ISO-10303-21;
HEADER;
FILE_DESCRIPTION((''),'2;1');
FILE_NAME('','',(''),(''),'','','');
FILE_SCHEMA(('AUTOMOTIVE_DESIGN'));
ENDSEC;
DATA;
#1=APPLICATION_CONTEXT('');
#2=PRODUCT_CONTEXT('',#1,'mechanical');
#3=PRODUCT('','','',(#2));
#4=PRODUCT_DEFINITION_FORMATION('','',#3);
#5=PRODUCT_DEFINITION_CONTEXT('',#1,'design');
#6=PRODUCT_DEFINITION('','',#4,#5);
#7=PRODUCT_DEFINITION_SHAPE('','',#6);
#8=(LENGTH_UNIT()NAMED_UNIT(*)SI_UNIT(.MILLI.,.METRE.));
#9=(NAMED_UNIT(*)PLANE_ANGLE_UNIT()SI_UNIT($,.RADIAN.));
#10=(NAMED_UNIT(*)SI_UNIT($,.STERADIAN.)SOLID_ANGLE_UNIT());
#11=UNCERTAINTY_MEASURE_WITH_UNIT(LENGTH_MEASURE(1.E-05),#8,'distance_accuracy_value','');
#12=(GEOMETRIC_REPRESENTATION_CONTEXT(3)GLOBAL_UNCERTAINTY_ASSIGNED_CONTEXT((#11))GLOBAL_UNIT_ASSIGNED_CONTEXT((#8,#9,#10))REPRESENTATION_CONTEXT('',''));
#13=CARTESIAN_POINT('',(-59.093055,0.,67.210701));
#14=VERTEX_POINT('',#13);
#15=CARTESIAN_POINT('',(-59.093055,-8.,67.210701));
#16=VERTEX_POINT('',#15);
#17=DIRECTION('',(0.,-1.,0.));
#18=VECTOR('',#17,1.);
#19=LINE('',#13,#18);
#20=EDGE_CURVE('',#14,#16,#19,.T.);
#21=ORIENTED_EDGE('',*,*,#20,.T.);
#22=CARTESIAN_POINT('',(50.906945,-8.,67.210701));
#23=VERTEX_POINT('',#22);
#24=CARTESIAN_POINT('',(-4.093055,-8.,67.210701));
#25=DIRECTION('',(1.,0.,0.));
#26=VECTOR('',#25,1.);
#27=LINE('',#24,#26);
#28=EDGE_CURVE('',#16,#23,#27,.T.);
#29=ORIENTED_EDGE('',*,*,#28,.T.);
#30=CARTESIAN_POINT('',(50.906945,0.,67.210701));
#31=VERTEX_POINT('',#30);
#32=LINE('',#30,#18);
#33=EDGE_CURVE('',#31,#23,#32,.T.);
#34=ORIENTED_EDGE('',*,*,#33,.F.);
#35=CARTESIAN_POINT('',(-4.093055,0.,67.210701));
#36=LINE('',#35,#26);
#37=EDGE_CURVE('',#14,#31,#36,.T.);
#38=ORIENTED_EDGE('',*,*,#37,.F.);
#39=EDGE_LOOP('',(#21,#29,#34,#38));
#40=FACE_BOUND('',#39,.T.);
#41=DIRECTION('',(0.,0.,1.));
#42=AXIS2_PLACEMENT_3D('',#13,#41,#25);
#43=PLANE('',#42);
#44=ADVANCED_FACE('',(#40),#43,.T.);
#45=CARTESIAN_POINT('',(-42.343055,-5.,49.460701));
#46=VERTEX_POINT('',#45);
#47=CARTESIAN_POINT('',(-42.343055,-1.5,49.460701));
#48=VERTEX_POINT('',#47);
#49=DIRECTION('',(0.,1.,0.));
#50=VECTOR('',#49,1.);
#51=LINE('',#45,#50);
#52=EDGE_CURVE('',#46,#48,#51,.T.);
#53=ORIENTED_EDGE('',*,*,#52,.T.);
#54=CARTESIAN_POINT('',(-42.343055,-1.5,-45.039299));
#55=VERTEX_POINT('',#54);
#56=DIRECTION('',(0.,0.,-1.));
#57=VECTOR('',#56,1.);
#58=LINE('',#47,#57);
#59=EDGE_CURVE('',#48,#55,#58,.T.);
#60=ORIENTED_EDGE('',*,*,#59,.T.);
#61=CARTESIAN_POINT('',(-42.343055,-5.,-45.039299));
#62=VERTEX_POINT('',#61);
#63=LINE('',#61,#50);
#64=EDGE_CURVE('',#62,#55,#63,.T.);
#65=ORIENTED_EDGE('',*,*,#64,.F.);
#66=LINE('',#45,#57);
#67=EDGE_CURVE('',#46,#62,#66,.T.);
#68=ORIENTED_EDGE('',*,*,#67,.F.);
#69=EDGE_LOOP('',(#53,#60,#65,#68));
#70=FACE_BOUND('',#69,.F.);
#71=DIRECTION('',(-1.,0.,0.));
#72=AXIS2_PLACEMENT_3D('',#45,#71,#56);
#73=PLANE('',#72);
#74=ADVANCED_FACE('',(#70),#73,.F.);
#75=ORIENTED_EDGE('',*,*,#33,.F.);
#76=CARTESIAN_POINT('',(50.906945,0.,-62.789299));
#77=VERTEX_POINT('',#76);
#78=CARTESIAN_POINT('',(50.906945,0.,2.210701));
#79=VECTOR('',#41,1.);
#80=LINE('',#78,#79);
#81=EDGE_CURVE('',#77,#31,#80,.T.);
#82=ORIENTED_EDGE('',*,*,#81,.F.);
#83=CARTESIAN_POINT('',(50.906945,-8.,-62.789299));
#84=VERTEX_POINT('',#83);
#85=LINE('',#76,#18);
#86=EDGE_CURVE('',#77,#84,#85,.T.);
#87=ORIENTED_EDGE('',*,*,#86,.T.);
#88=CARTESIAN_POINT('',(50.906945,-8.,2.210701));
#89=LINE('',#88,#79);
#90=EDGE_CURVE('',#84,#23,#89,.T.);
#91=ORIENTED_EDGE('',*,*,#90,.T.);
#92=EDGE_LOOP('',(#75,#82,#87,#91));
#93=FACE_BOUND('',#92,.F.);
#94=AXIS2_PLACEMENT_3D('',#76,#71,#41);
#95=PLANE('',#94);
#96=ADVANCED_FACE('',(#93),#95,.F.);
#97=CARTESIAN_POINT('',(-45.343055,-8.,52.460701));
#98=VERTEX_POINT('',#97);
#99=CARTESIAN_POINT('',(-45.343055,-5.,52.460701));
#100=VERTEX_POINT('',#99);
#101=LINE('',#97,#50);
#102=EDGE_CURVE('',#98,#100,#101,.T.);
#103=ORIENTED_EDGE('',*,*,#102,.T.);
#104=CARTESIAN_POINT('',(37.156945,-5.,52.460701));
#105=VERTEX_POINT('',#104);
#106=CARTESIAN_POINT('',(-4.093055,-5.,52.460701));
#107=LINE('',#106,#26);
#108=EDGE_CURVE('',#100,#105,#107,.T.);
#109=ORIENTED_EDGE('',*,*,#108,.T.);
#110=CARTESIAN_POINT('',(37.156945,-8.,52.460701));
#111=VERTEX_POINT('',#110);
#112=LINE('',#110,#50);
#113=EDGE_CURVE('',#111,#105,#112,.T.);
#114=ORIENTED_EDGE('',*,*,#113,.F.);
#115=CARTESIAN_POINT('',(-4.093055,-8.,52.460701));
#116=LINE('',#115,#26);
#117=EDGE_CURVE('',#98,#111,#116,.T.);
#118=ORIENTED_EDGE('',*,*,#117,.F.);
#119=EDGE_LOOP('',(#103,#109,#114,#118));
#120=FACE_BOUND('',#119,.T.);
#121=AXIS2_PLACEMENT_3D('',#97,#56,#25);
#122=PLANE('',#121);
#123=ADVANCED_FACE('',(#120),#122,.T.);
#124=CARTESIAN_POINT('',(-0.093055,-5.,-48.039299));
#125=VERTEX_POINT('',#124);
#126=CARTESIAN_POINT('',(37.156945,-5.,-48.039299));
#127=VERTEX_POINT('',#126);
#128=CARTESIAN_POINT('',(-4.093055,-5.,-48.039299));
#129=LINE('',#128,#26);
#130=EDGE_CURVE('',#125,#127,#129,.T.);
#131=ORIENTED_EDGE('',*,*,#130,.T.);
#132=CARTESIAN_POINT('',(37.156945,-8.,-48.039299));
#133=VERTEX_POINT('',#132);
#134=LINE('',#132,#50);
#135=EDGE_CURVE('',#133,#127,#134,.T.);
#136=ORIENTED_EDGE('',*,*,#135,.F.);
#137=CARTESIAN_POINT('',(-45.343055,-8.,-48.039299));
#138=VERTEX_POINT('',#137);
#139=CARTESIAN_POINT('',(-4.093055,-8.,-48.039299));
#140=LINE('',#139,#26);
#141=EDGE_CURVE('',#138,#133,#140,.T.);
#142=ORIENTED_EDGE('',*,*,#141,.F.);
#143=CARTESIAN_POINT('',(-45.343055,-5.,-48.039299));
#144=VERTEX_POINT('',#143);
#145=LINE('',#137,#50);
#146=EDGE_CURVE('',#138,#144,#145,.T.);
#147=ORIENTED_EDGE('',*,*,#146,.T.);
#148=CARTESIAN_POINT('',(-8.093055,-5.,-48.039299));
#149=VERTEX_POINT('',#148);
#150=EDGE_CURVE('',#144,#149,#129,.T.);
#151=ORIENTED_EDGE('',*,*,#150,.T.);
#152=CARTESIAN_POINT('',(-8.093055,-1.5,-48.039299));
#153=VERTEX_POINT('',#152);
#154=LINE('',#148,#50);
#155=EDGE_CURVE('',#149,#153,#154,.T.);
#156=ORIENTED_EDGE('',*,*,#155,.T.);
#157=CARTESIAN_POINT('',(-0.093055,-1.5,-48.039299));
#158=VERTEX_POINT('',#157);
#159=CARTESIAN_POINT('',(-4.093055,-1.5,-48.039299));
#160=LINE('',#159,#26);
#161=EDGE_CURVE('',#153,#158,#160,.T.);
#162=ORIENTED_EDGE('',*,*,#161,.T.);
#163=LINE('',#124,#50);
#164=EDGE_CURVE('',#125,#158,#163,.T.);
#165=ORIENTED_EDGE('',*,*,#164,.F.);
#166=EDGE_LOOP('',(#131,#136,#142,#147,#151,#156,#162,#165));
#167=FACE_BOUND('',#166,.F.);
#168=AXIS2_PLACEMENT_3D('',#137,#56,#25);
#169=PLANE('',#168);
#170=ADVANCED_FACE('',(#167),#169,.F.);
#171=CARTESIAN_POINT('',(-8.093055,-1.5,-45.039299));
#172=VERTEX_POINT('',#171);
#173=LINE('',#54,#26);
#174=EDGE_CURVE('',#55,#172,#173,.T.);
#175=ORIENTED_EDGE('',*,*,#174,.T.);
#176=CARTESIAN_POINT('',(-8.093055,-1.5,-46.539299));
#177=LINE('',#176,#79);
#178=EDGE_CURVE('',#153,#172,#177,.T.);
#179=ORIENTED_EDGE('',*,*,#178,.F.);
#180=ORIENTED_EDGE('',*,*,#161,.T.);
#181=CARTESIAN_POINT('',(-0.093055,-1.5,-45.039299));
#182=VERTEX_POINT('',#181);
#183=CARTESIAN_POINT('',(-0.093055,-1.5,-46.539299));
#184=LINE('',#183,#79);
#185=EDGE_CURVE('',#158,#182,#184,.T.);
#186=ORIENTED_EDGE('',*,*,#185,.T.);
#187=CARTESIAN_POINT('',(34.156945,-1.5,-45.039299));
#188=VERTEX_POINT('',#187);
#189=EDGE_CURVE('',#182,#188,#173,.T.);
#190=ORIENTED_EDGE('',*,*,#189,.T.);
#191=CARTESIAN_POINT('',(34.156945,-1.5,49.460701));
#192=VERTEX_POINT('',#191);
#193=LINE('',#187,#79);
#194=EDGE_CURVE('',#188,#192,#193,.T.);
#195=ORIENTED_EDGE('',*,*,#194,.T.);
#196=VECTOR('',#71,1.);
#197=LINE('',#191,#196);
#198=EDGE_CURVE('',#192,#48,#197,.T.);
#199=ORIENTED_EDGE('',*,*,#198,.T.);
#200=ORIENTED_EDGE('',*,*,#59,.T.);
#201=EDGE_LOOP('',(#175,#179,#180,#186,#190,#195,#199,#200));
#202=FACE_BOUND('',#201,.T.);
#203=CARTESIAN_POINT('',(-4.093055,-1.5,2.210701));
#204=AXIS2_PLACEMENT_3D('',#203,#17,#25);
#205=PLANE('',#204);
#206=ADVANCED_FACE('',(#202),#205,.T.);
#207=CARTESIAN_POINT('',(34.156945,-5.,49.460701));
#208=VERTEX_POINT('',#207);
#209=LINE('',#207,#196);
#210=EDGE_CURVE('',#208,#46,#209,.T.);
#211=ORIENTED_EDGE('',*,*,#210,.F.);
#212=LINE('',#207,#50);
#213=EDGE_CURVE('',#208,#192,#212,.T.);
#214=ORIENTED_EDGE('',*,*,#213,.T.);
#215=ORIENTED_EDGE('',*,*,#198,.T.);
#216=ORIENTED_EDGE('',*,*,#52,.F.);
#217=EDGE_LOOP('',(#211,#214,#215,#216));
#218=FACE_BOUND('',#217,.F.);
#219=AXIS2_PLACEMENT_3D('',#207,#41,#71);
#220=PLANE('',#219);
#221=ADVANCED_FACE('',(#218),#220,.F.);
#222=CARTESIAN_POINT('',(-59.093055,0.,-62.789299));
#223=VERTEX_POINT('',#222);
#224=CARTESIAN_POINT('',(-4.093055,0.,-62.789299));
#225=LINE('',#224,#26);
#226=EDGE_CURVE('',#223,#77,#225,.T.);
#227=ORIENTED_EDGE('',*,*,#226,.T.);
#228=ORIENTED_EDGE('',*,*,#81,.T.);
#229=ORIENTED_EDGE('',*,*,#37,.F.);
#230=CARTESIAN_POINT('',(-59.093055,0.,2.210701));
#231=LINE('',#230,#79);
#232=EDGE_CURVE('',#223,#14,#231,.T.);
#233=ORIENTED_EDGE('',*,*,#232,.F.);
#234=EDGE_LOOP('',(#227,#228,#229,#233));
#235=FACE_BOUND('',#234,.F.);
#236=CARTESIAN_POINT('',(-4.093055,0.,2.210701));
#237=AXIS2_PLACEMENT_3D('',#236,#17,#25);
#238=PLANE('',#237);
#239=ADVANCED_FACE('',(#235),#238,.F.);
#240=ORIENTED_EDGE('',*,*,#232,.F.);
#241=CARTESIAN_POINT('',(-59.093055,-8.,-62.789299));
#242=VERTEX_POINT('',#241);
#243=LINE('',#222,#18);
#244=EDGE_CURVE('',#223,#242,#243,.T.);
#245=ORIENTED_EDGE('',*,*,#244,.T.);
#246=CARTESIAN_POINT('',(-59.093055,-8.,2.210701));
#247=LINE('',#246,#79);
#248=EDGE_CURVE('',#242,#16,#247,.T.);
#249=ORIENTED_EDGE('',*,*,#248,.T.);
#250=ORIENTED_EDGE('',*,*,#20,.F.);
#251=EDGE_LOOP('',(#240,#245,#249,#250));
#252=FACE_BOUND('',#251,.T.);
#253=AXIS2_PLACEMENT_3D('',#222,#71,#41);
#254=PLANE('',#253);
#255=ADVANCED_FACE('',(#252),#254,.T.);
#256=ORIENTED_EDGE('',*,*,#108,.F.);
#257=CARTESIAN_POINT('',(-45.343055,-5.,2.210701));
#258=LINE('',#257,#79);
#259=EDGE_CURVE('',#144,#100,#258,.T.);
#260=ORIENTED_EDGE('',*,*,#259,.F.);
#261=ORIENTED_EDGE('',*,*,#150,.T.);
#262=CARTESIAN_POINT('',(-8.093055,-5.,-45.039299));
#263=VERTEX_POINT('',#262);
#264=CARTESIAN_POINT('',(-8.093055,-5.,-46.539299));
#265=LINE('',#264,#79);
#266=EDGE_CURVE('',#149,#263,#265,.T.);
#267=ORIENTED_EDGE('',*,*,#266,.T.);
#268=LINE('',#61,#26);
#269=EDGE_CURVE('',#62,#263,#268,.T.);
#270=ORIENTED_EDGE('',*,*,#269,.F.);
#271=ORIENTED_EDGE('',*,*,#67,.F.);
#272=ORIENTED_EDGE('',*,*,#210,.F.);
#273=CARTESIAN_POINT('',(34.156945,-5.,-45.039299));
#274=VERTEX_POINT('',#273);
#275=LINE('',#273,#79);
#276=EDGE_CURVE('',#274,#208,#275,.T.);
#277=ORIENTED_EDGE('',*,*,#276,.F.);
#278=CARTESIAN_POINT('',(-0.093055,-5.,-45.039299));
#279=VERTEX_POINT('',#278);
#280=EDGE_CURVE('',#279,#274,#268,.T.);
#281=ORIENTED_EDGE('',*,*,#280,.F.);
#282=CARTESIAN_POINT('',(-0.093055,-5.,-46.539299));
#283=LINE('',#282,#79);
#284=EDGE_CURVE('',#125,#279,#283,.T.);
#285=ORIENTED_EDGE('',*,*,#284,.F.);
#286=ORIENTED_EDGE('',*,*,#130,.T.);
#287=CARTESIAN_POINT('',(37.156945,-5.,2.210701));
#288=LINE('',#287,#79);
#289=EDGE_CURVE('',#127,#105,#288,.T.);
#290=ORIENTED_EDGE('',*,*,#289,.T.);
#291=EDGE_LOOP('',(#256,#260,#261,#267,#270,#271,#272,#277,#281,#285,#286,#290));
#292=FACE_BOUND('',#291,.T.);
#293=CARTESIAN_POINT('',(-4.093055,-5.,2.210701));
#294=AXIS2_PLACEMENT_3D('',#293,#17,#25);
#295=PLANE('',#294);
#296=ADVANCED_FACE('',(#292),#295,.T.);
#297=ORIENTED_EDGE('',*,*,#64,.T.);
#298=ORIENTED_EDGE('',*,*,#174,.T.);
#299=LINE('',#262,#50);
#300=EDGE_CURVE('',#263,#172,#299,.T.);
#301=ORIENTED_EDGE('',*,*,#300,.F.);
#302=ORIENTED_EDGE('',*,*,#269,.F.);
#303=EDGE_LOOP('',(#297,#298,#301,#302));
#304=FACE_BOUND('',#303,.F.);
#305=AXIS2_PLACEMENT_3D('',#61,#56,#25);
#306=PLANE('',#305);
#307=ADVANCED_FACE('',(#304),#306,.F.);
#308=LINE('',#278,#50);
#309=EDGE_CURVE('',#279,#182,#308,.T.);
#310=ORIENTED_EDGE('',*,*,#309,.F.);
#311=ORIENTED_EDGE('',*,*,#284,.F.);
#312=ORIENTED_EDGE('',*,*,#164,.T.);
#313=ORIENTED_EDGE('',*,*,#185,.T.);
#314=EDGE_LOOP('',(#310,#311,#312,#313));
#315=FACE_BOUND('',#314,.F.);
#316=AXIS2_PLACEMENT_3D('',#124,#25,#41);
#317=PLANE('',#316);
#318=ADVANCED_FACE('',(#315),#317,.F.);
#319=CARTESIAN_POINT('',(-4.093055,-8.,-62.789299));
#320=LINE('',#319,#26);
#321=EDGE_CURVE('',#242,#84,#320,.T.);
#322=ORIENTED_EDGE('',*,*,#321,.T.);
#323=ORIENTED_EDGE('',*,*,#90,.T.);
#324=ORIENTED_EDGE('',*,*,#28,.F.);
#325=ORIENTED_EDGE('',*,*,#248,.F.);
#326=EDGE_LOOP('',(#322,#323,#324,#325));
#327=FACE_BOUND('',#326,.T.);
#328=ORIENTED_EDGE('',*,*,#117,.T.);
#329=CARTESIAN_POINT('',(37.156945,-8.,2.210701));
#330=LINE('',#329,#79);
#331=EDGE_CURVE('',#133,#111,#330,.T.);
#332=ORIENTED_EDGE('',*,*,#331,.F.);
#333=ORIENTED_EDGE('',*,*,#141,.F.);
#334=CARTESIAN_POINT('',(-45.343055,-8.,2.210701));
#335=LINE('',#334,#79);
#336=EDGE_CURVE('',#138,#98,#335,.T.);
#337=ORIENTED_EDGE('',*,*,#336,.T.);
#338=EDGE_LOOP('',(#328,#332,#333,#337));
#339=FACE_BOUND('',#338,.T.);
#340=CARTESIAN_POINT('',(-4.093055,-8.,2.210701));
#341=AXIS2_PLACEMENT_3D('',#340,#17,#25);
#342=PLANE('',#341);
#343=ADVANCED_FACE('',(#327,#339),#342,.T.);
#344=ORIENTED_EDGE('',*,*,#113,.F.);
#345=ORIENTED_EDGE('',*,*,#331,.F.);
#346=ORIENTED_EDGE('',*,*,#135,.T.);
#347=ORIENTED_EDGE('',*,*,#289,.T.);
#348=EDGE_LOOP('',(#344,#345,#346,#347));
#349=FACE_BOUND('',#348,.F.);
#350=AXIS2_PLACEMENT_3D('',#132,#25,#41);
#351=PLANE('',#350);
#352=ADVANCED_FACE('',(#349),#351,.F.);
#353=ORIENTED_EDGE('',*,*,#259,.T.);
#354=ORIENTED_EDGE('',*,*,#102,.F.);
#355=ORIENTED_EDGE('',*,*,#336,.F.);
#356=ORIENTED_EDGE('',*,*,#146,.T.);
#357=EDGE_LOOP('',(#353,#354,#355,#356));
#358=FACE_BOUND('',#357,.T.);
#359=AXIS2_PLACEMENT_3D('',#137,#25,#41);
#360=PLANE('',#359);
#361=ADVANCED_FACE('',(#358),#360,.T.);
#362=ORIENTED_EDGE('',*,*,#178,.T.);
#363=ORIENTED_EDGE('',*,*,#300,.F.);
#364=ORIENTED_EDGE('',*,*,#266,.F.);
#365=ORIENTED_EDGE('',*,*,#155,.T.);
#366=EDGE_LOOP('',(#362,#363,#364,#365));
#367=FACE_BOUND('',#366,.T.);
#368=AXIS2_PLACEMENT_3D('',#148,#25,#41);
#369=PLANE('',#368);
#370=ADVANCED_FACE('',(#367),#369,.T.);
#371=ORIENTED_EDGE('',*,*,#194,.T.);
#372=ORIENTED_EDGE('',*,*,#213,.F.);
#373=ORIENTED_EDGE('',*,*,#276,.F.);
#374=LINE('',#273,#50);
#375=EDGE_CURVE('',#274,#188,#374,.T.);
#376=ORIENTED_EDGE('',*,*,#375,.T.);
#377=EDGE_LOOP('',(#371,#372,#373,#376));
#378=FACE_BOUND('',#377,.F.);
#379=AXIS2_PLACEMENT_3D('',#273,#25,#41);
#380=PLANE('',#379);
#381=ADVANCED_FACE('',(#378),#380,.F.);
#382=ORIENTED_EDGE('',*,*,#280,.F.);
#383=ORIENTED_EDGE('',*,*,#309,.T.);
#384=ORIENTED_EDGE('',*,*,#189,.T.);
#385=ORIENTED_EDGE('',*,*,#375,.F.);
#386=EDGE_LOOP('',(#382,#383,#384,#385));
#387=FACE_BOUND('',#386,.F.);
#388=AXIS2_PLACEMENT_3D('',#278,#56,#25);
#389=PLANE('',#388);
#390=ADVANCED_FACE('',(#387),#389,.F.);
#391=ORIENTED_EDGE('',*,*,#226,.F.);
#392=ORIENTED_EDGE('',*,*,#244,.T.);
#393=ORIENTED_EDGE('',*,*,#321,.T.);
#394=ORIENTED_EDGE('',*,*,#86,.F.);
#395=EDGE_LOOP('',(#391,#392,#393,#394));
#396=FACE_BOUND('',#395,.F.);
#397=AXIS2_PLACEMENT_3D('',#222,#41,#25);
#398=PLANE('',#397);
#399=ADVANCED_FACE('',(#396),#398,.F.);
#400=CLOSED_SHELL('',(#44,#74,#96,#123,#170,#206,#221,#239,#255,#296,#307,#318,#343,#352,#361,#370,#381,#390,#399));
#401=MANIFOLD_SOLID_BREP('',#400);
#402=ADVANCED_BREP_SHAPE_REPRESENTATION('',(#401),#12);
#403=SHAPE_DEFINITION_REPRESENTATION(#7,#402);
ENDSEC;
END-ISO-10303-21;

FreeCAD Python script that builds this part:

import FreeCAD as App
import Part
import Sketcher
from FreeCAD import Vector

doc = App.newDocument("Part")
body = doc.addObject("PartDesign::Body", "Body")

# Sketch on XZ plane
sketch1 = body.newObject("Sketcher::SketchObject", "Sketch")
sketch1.AttachmentSupport = (doc.getObject("XZ_Plane"), [""])
sketch1.MapMode = "FlatFace"
sketch1.addGeometry(Part.LineSegment(Vector(-59.093055, 67.210701, 0), Vector(-59.093055, -62.789299, 0)), False)
sketch1.addGeometry(Part.LineSegment(Vector(-59.093055, -62.789299, 0), Vector(50.906945, -62.789299, 0)), False)
sketch1.addGeometry(Part.LineSegment(Vector(50.906945, -62.789299, 0), Vector(50.906945, 67.210701, 0)), False)
sketch1.addGeometry(Part.LineSegment(Vector(50.906945, 67.210701, 0), Vector(-59.093055, 67.210701, 0)), False)
sketch1.addConstraint(Sketcher.Constraint("Coincident", 0, 2, 1, 1))
sketch1.addConstraint(Sketcher.Constraint("Coincident", 1, 2, 2, 1))
sketch1.addConstraint(Sketcher.Constraint("Coincident", 2, 2, 3, 1))
sketch1.addConstraint(Sketcher.Constraint("Coincident", 3, 2, 0, 1))
sketch1.addConstraint(Sketcher.Constraint("Vertical", 0))
sketch1.addConstraint(Sketcher.Constraint("Horizontal", 1))
sketch1.addConstraint(Sketcher.Constraint("Vertical", 2))
sketch1.addConstraint(Sketcher.Constraint("Horizontal", 3))
sketch1.addConstraint(Sketcher.Constraint("DistanceX", 1, 1, 1, 2, 110.0))
sketch1.addConstraint(Sketcher.Constraint("DistanceY", 0, 2, 0, 1, 130.0))
sketch1.addConstraint(Sketcher.Constraint("DistanceY", 0, 2, -1, 1, 62.789299))
sketch1.addConstraint(Sketcher.Constraint("DistanceX", 0, 2, -1, 1, 59.093055))
pad1 = body.newObject("PartDesign::Pad", "Pad")
pad1.Profile = sketch1
pad1.Length = 8

# Sketch on XZ plane
sketch2 = body.newObject("Sketcher::SketchObject", "Sketch001")
sketch2.AttachmentSupport = (doc.getObject("XZ_Plane"), [""])
sketch2.MapMode = "FlatFace"
sketch2.AttachmentOffset = App.Placement(Vector(0, 0, 8), App.Rotation())
sketch2.addGeometry(Part.LineSegment(Vector(-45.343055, 52.460701, 0), Vector(-45.343055, -48.039299, 0)), False)
sketch2.addGeometry(Part.LineSegment(Vector(-45.343055, -48.039299, 0), Vector(37.156945, -48.039299, 0)), False)
sketch2.addGeometry(Part.LineSegment(Vector(37.156945, -48.039299, 0), Vector(37.156945, 52.460701, 0)), False)
sketch2.addGeometry(Part.LineSegment(Vector(37.156945, 52.460701, 0), Vector(-45.343055, 52.460701, 0)), False)
sketch2.addConstraint(Sketcher.Constraint("Coincident", 0, 2, 1, 1))
sketch2.addConstraint(Sketcher.Constraint("Coincident", 1, 2, 2, 1))
sketch2.addConstraint(Sketcher.Constraint("Coincident", 2, 2, 3, 1))
sketch2.addConstraint(Sketcher.Constraint("Coincident", 3, 2, 0, 1))
sketch2.addConstraint(Sketcher.Constraint("Vertical", 0))
sketch2.addConstraint(Sketcher.Constraint("Horizontal", 1))
sketch2.addConstraint(Sketcher.Constraint("Vertical", 2))
sketch2.addConstraint(Sketcher.Constraint("Horizontal", 3))
sketch2.addConstraint(Sketcher.Constraint("DistanceX", 1, 1, 1, 2, 82.5))
sketch2.addConstraint(Sketcher.Constraint("DistanceY", 0, 2, 0, 1, 100.5))
sketch2.addConstraint(Sketcher.Constraint("DistanceY", 0, 2, -1, 1, 48.039299))
sketch2.addConstraint(Sketcher.Constraint("DistanceX", 0, 2, -1, 1, 45.343055))
pocket1 = body.newObject("PartDesign::Pocket", "Pocket")
pocket1.Profile = sketch2
pocket1.Length = 3

# Sketch on XZ plane
sketch3 = body.newObject("Sketcher::SketchObject", "Sketch002")
sketch3.AttachmentSupport = (doc.getObject("XZ_Plane"), [""])
sketch3.MapMode = "FlatFace"
sketch3.AttachmentOffset = App.Placement(Vector(0, 0, 5), App.Rotation())
sketch3.addGeometry(Part.LineSegment(Vector(34.156945, 49.460701, 0), Vector(-42.343055, 49.460701, 0)), False)
sketch3.addGeometry(Part.LineSegment(Vector(-42.343055, 49.460701, 0), Vector(-42.343055, -45.039299, 0)), False)
sketch3.addGeometry(Part.LineSegment(Vector(-42.343055, -45.039299, 0), Vector(-8.093055, -45.039299, 0)), False)
sketch3.addGeometry(Part.LineSegment(Vector(-8.093055, -45.039299, 0), Vector(-8.093055, -48.039299, 0)), False)
sketch3.addGeometry(Part.LineSegment(Vector(-8.093055, -48.039299, 0), Vector(-0.093055, -48.039299, 0)), False)
sketch3.addGeometry(Part.LineSegment(Vector(-0.093055, -48.039299, 0), Vector(-0.093055, -45.039299, 0)), False)
sketch3.addGeometry(Part.LineSegment(Vector(-0.093055, -45.039299, 0), Vector(34.156945, -45.039299, 0)), False)
sketch3.addGeometry(Part.LineSegment(Vector(34.156945, -45.039299, 0), Vector(34.156945, 49.460701, 0)), False)
sketch3.addConstraint(Sketcher.Constraint("Coincident", 0, 2, 1, 1))
sketch3.addConstraint(Sketcher.Constraint("Coincident", 1, 2, 2, 1))
sketch3.addConstraint(Sketcher.Constraint("Coincident", 2, 2, 3, 1))
sketch3.addConstraint(Sketcher.Constraint("Coincident", 3, 2, 4, 1))
sketch3.addConstraint(Sketcher.Constraint("Coincident", 4, 2, 5, 1))
sketch3.addConstraint(Sketcher.Constraint("Coincident", 5, 2, 6, 1))
sketch3.addConstraint(Sketcher.Constraint("Coincident", 6, 2, 7, 1))
sketch3.addConstraint(Sketcher.Constraint("Coincident", 7, 2, 0, 1))
sketch3.addConstraint(Sketcher.Constraint("Horizontal", 0))
sketch3.addConstraint(Sketcher.Constraint("Vertical", 1))
sketch3.addConstraint(Sketcher.Constraint("Horizontal", 2))
sketch3.addConstraint(Sketcher.Constraint("Vertical", 3))
sketch3.addConstraint(Sketcher.Constraint("Horizontal", 4))
sketch3.addConstraint(Sketcher.Constraint("Vertical", 5))
sketch3.addConstraint(Sketcher.Constraint("Horizontal", 6))
sketch3.addConstraint(Sketcher.Constraint("Vertical", 7))
sketch3.addConstraint(Sketcher.Constraint("Horizontal", 2, 2, 5, 2))
sketch3.addConstraint(Sketcher.Constraint("Equal", 2, 6))
sketch3.addConstraint(Sketcher.Constraint("DistanceX", 4, 1, 4, 2, 8.0))
sketch3.addConstraint(Sketcher.Constraint("DistanceY", 3, 2, 3, 1, 3.0))
sketch3.addConstraint(Sketcher.Constraint("DistanceX", 0, 2, 0, 1, 76.5))
sketch3.addConstraint(Sketcher.Constraint("DistanceY", 1, 2, 1, 1, 94.5))
sketch3.addConstraint(Sketcher.Constraint("DistanceY", -1, 1, 0, 2, 49.460701))
sketch3.addConstraint(Sketcher.Constraint("DistanceX", 0, 2, -1, 1, 42.343055))
pocket2 = body.newObject("PartDesign::Pocket", "Pocket001")
pocket2.Profile = sketch3
pocket2.Length = 3.5

doc.recompute()
